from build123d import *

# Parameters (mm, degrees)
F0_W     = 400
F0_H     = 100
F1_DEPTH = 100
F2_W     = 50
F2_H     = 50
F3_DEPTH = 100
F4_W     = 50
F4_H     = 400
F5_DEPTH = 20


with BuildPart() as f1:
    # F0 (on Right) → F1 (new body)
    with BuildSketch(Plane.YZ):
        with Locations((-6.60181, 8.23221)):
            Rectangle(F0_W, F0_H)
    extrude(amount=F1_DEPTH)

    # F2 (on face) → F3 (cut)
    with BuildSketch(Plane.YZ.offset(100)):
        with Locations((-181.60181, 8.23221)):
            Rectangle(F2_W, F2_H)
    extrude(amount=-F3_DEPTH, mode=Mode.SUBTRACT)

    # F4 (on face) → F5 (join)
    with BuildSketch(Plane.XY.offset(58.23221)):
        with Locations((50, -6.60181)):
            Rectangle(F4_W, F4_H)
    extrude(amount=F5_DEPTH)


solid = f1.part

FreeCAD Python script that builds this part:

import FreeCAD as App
import Part
import Sketcher
Q = App.Units.Quantity

doc = App.newDocument("Part")
params = doc.addObject("Spreadsheet::Sheet", "Params")
for row, (alias, value) in enumerate([
    ("sketch1_width", "400 mm"),
    ("sketch1_height", "100 mm"),
    ("pad1_length", "100 mm"),
    ("sketch2_width", "50 mm"),
    ("pocket1_length", "100 mm"),
    ("sketch3_width", "50 mm"),
    ("sketch3_height", "400 mm"),
    ("pad2_length", "20 mm"),
], start=1):
    params.set(f"A{row}", alias)
    params.set(f"B{row}", "=" + value)
    params.setAlias(f"B{row}", alias)

body = doc.addObject("PartDesign::Body", "Body")

sketch1 = body.newObject("Sketcher::SketchObject", "Sketch")
sketch1.AttachmentSupport = (doc.getObject("YZ_Plane"), [""])
sketch1.MapMode = "FlatFace"
sketch1.addGeometry([
    Part.LineSegment(App.Vector(-207, 58, 0), App.Vector(-207, -42, 0)),
    Part.LineSegment(App.Vector(-207, -42, 0), App.Vector(193, -42, 0)),
    Part.LineSegment(App.Vector(193, -42, 0), App.Vector(193, 58, 0)),
    Part.LineSegment(App.Vector(193, 58, 0), App.Vector(-207, 58, 0)),
], False)
sketch1.addConstraint([
    Sketcher.Constraint("Coincident", 0, 2, 1, 1),
    Sketcher.Constraint("Coincident", 1, 2, 2, 1),
    Sketcher.Constraint("Coincident", 2, 2, 3, 1),
    Sketcher.Constraint("Coincident", 3, 2, 0, 1),
    Sketcher.Constraint("Vertical", 0),
    Sketcher.Constraint("Horizontal", 1),
    Sketcher.Constraint("Vertical", 2),
    Sketcher.Constraint("Horizontal", 3),
    Sketcher.Constraint("DistanceX", 1, 1, 1, 2, Q("400 mm")),
    Sketcher.Constraint("DistanceY", 0, 2, 0, 1, Q("100 mm")),
    Sketcher.Constraint("DistanceX", 0, 2, -1, 1, Q("206.60181 mm")),
    Sketcher.Constraint("DistanceY", 0, 2, -1, 1, Q("41.76779 mm")),
])
sketch1.setExpression("Constraints[8]", "Params.sketch1_width")
sketch1.setExpression("Constraints[9]", "Params.sketch1_height")
pad1 = body.newObject("PartDesign::Pad", "Pad")
pad1.Profile = sketch1
pad1.setExpression("Length", "Params.pad1_length")

sketch2 = body.newObject("Sketcher::SketchObject", "Sketch001")
sketch2.AttachmentSupport = (doc.getObject("YZ_Plane"), [""])
sketch2.MapMode = "FlatFace"
sketch2.AttachmentOffset = App.Placement(App.Vector(0, 0, 100), App.Rotation())
sketch2.addGeometry([
    Part.LineSegment(App.Vector(-207, 33, 0), App.Vector(-207, -17, 0)),
    Part.LineSegment(App.Vector(-207, -17, 0), App.Vector(-157, -17, 0)),
    Part.LineSegment(App.Vector(-157, -17, 0), App.Vector(-157, 33, 0)),
    Part.LineSegment(App.Vector(-157, 33, 0), App.Vector(-207, 33, 0)),
], False)
sketch2.addConstraint([
    Sketcher.Constraint("Coincident", 0, 2, 1, 1),
    Sketcher.Constraint("Coincident", 1, 2, 2, 1),
    Sketcher.Constraint("Coincident", 2, 2, 3, 1),
    Sketcher.Constraint("Coincident", 3, 2, 0, 1),
    Sketcher.Constraint("Vertical", 0),
    Sketcher.Constraint("Horizontal", 1),
    Sketcher.Constraint("Vertical", 2),
    Sketcher.Constraint("Horizontal", 3),
    Sketcher.Constraint("Equal", 3, 0),
    Sketcher.Constraint("DistanceX", 1, 1, 1, 2, Q("50 mm")),
    Sketcher.Constraint("DistanceX", 0, 2, -1, 1, Q("206.60181 mm")),
    Sketcher.Constraint("DistanceY", 0, 2, -1, 1, Q("16.76779 mm")),
])
sketch2.setExpression("Constraints[9]", "Params.sketch2_width")
pocket1 = body.newObject("PartDesign::Pocket", "Pocket")
pocket1.Profile = sketch2
pocket1.setExpression("Length", "Params.pocket1_length")

sketch3 = body.newObject("Sketcher::SketchObject", "Sketch002")
sketch3.AttachmentSupport = (doc.getObject("XY_Plane"), [""])
sketch3.MapMode = "FlatFace"
sketch3.AttachmentOffset = App.Placement(App.Vector(0, 0, 58.23221), App.Rotation())
sketch3.addGeometry([
    Part.LineSegment(App.Vector(25, 193, 0), App.Vector(25, -207, 0)),
    Part.LineSegment(App.Vector(25, -207, 0), App.Vector(75, -207, 0)),
    Part.LineSegment(App.Vector(75, -207, 0), App.Vector(75, 193, 0)),
    Part.LineSegment(App.Vector(75, 193, 0), App.Vector(25, 193, 0)),
], False)
sketch3.addConstraint([
    Sketcher.Constraint("Coincident", 0, 2, 1, 1),
    Sketcher.Constraint("Coincident", 1, 2, 2, 1),
    Sketcher.Constraint("Coincident", 2, 2, 3, 1),
    Sketcher.Constraint("Coincident", 3, 2, 0, 1),
    Sketcher.Constraint("Vertical", 0),
    Sketcher.Constraint("Horizontal", 1),
    Sketcher.Constraint("Vertical", 2),
    Sketcher.Constraint("Horizontal", 3),
    Sketcher.Constraint("DistanceX", 1, 1, 1, 2, Q("50 mm")),
    Sketcher.Constraint("DistanceY", 0, 2, 0, 1, Q("400 mm")),
    Sketcher.Constraint("DistanceX", -1, 1, 0, 2, Q("25 mm")),
    Sketcher.Constraint("DistanceY", 0, 2, -1, 1, Q("206.60181 mm")),
])
sketch3.setExpression("Constraints[8]", "Params.sketch3_width")
sketch3.setExpression("Constraints[9]", "Params.sketch3_height")
pad2 = body.newObject("PartDesign::Pad", "Pad001")
pad2.Profile = sketch3
pad2.setExpression("Length", "Params.pad2_length")

doc.recompute()
